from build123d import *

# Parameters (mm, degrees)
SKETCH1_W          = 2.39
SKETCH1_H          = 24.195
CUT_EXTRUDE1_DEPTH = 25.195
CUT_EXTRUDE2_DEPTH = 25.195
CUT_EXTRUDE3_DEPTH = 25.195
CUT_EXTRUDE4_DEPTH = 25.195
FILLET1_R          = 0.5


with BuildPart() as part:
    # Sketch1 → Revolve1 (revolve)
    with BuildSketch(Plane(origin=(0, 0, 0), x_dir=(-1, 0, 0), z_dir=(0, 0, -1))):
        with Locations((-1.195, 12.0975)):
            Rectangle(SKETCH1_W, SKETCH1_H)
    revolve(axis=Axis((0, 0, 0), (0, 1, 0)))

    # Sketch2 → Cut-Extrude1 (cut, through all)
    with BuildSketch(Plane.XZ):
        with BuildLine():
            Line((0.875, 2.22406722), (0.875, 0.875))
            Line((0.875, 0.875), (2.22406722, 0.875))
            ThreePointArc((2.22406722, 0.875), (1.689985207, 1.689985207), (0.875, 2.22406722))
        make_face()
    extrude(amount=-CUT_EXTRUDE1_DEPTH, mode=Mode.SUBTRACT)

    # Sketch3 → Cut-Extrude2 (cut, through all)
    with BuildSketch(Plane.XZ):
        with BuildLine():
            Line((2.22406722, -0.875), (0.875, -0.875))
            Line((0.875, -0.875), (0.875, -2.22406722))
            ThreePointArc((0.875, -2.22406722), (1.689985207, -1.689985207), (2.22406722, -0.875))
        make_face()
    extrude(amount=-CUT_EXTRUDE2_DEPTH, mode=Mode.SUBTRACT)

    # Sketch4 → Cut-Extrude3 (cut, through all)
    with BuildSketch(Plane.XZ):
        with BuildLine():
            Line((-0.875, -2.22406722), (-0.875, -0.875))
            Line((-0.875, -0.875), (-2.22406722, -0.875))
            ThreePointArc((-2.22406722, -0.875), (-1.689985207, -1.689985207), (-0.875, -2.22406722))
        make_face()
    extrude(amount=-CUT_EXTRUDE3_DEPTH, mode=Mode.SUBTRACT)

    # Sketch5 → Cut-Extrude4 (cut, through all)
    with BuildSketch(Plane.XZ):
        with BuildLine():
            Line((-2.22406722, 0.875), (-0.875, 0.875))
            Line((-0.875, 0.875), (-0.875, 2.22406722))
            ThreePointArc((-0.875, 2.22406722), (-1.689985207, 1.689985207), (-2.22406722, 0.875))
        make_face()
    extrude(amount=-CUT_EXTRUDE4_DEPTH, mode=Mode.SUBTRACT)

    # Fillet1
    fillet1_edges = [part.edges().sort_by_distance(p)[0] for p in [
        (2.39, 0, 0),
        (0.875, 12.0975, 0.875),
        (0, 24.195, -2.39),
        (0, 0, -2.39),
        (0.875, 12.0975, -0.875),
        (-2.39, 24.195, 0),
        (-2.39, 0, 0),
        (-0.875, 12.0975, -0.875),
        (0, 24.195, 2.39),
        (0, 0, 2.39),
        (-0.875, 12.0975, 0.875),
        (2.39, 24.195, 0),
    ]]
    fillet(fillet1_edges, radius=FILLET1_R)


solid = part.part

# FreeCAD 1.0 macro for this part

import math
import FreeCAD as App
import Part
import Sketcher
from FreeCAD import Vector


def edges_at(feature, points):
    """Names of the edges that pass closest to the given points."""
    edges = feature.Shape.Edges
    near = lambda p: min(range(len(edges)), key=lambda i: edges[i].distToShape(Part.Vertex(*p))[0])
    return sorted({f"Edge{near(p) + 1}" for p in points})

doc = App.newDocument("Part")
body = doc.addObject("PartDesign::Body", "Body")

# Sketch on XY plane
sketch1 = body.newObject("Sketcher::SketchObject", "Sketch")
sketch1.AttachmentSupport = (doc.getObject("XY_Plane"), [""])
sketch1.MapMode = "FlatFace"
sketch1.addGeometry([
    Part.LineSegment(Vector(2.4, 24.2, 0), Vector(2.4, 0, 0)),
    Part.LineSegment(Vector(2.4, 0, 0), Vector(0, 0, 0)),
    Part.LineSegment(Vector(0, 0, 0), Vector(0, 24.2, 0)),
    Part.LineSegment(Vector(0, 24.2, 0), Vector(2.4, 24.2, 0)),
], False)
sketch1.addConstraint([
    Sketcher.Constraint("Coincident", 0, 2, 1, 1),
    Sketcher.Constraint("Coincident", 1, 2, 2, 1),
    Sketcher.Constraint("Coincident", 2, 2, 3, 1),
    Sketcher.Constraint("Coincident", 3, 2, 0, 1),
    Sketcher.Constraint("Vertical", 0),
    Sketcher.Constraint("Horizontal", 1),
    Sketcher.Constraint("Vertical", 2),
    Sketcher.Constraint("Horizontal", 3),
    Sketcher.Constraint("Coincident", 1, 2, -1, 1),
    Sketcher.Constraint("DistanceX", 1, 2, 1, 1, 2.39),
    Sketcher.Constraint("DistanceY", 0, 2, 0, 1, 24.195),
])
revolution = body.newObject("PartDesign::Revolution", "Revolution")
revolution.Profile = sketch1
revolution.ReferenceAxis = (sketch1, ["V_Axis"])
revolution.Angle = 360

# Sketch on XZ plane
sketch2 = body.newObject("Sketcher::SketchObject", "Sketch001")
sketch2.AttachmentSupport = (doc.getObject("XZ_Plane"), [""])
sketch2.MapMode = "FlatFace"
sketch2.addGeometry([
    Part.LineSegment(Vector(0.9, 2.2, 0), Vector(0.9, 0.9, 0)),
    Part.LineSegment(Vector(0.9, 0.9, 0), Vector(2.2, 0.9, 0)),
    Part.ArcOfCircle(Part.Circle(Vector(0, 0, 0), Vector(0, 0, 1), 2.4), math.radians(21), math.radians(69)),
], False)
sketch2.addConstraint([
    Sketcher.Constraint("Coincident", 0, 2, 1, 1),
    Sketcher.Constraint("Coincident", 1, 2, 2, 1),
    Sketcher.Constraint("Coincident", 2, 2, 0, 1),
    Sketcher.Constraint("Vertical", 0),
    Sketcher.Constraint("Horizontal", 1),
    Sketcher.Constraint("Coincident", 2, 3, -1, 1),
    Sketcher.Constraint("Equal", 1, 0),
    Sketcher.Constraint("Radius", 2, 2.39),
    Sketcher.Constraint("DistanceX", -1, 1, 0, 2, 0.875),
])
pocket1 = body.newObject("PartDesign::Pocket", "Pocket")
pocket1.Profile = sketch2
pocket1.Type = "ThroughAll"

# Sketch on XZ plane
sketch3 = body.newObject("Sketcher::SketchObject", "Sketch002")
sketch3.AttachmentSupport = (doc.getObject("XZ_Plane"), [""])
sketch3.MapMode = "FlatFace"
sketch3.addGeometry([
    Part.LineSegment(Vector(2.2, -0.9, 0), Vector(0.9, -0.9, 0)),
    Part.LineSegment(Vector(0.9, -0.9, 0), Vector(0.9, -2.2, 0)),
    Part.ArcOfCircle(Part.Circle(Vector(0, 0, 0), Vector(0, 0, 1), 2.4), math.radians(-69), math.radians(-21)),
], False)
sketch3.addConstraint([
    Sketcher.Constraint("Coincident", 0, 2, 1, 1),
    Sketcher.Constraint("Coincident", 1, 2, 2, 1),
    Sketcher.Constraint("Coincident", 2, 2, 0, 1),
    Sketcher.Constraint("Horizontal", 0),
    Sketcher.Constraint("Vertical", 1),
    Sketcher.Constraint("Coincident", 2, 3, -1, 1),
    Sketcher.Constraint("Equal", 0, 1),
    Sketcher.Constraint("Radius", 2, 2.39),
    Sketcher.Constraint("DistanceX", -1, 1, 0, 2, 0.875),
])
pocket2 = body.newObject("PartDesign::Pocket", "Pocket001")
pocket2.Profile = sketch3
pocket2.Type = "ThroughAll"

# Sketch on XZ plane
sketch4 = body.newObject("Sketcher::SketchObject", "Sketch003")
sketch4.AttachmentSupport = (doc.getObject("XZ_Plane"), [""])
sketch4.MapMode = "FlatFace"
sketch4.addGeometry([
    Part.LineSegment(Vector(-0.9, -2.2, 0), Vector(-0.9, -0.9, 0)),
    Part.LineSegment(Vector(-0.9, -0.9, 0), Vector(-2.2, -0.9, 0)),
    Part.ArcOfCircle(Part.Circle(Vector(0, 0, 0), Vector(0, 0, 1), 2.4), math.radians(-159), math.radians(-111)),
], False)
sketch4.addConstraint([
    Sketcher.Constraint("Coincident", 0, 2, 1, 1),
    Sketcher.Constraint("Coincident", 1, 2, 2, 1),
    Sketcher.Constraint("Coincident", 2, 2, 0, 1),
    Sketcher.Constraint("Vertical", 0),
    Sketcher.Constraint("Horizontal", 1),
    Sketcher.Constraint("Coincident", 2, 3, -1, 1),
    Sketcher.Constraint("Equal", 1, 0),
    Sketcher.Constraint("Radius", 2, 2.39),
    Sketcher.Constraint("DistanceX", 0, 2, -1, 1, 0.875),
])
pocket3 = body.newObject("PartDesign::Pocket", "Pocket002")
pocket3.Profile = sketch4
pocket3.Type = "ThroughAll"

# Sketch on XZ plane
sketch5 = body.newObject("Sketcher::SketchObject", "Sketch004")
sketch5.AttachmentSupport = (doc.getObject("XZ_Plane"), [""])
sketch5.MapMode = "FlatFace"
sketch5.addGeometry([
    Part.LineSegment(Vector(-2.2, 0.9, 0), Vector(-0.9, 0.9, 0)),
    Part.LineSegment(Vector(-0.9, 0.9, 0), Vector(-0.9, 2.2, 0)),
    Part.ArcOfCircle(Part.Circle(Vector(0, 0, 0), Vector(0, 0, 1), 2.4), math.radians(111), math.radians(159)),
], False)
sketch5.addConstraint([
    Sketcher.Constraint("Coincident", 0, 2, 1, 1),
    Sketcher.Constraint("Coincident", 1, 2, 2, 1),
    Sketcher.Constraint("Coincident", 2, 2, 0, 1),
    Sketcher.Constraint("Horizontal", 0),
    Sketcher.Constraint("Vertical", 1),
    Sketcher.Constraint("Coincident", 2, 3, -1, 1),
    Sketcher.Constraint("Equal", 0, 1),
    Sketcher.Constraint("Radius", 2, 2.39),
    Sketcher.Constraint("DistanceX", 0, 2, -1, 1, 0.875),
])
pocket4 = body.newObject("PartDesign::Pocket", "Pocket003")
pocket4.Profile = sketch5
pocket4.Type = "ThroughAll"
doc.recompute()

fillet = body.newObject("PartDesign::Fillet", "Fillet")
fillet.Base = (pocket4, edges_at(pocket4, [
    (2.39, 0, 0),
    (0.875, 12.098, 0.875),
    (0, 24.195, -2.39),
    (0, 0, -2.39),
    (0.875, 12.098, -0.875),
    (-2.39, 24.195, 0),
    (-2.39, 0, 0),
    (-0.875, 12.098, -0.875),
    (0, 24.195, 2.39),
    (0, 0, 2.39),
    (-0.875, 12.098, 0.875),
    (2.39, 24.195, 0),
]))
fillet.Radius = 0.5

doc.recompute()
